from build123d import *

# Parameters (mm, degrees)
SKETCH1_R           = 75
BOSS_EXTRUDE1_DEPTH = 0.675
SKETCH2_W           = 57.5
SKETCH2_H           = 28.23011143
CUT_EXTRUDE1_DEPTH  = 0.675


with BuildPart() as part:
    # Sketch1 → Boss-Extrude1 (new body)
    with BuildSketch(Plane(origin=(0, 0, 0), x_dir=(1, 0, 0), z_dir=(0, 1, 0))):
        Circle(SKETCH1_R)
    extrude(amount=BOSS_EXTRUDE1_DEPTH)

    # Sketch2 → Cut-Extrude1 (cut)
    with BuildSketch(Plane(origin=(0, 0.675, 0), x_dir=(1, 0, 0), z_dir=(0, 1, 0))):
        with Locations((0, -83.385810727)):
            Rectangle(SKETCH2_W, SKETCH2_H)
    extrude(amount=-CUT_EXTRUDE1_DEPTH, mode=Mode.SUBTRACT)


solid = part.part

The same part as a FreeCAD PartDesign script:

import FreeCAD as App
import Part
import Sketcher
from FreeCAD import Vector


def add_polygon(sketch, points):
    """Adds a closed chain of lines whose ends are joined by coincident constraints."""
    first, n = sketch.GeometryCount, len(points)
    for a, b in zip(points, points[1:] + points[:1]):
        sketch.addGeometry(Part.LineSegment(App.Vector(*a, 0), App.Vector(*b, 0)), False)
    for i in range(n):
        sketch.addConstraint(Sketcher.Constraint("Coincident", first + i, 2, first + (i + 1) % n, 1))

doc = App.newDocument("Part")
params = doc.addObject("Spreadsheet::Sheet", "Params")
for row, (alias, value) in enumerate([
    ("sketch1_diameter", "150 mm"),
    ("pad1_length", "0.675 mm"),
    ("sketch2_width", "57.5 mm"),
    ("pocket1_length", "0.675 mm"),
], start=1):
    params.set(f"A{row}", alias)
    params.set(f"B{row}", "=" + value)
    params.setAlias(f"B{row}", alias)

body = doc.addObject("PartDesign::Body", "Body")

# Sketch on XZ plane
sketch1 = body.newObject("Sketcher::SketchObject", "Sketch")
sketch1.AttachmentSupport = (doc.getObject("XZ_Plane"), [""])
sketch1.MapMode = "FlatFace"
sketch1.addGeometry(Part.Circle(Vector(0, 0, 0), Vector(0, 0, 1), 75), False)
sketch1.addConstraint(Sketcher.Constraint("Coincident", 0, 3, -1, 1))
sketch1.addConstraint(Sketcher.Constraint("Diameter", 0, 150.0))
sketch1.setExpression("Constraints[1]", "Params.sketch1_diameter")
pad1 = body.newObject("PartDesign::Pad", "Pad")
pad1.Profile = sketch1
pad1.setExpression("Length", "Params.pad1_length")
pad1.Reversed = True

# Sketch on XZ plane
sketch2 = body.newObject("Sketcher::SketchObject", "Sketch001")
sketch2.AttachmentSupport = (doc.getObject("XZ_Plane"), [""])
sketch2.MapMode = "FlatFace"
sketch2.AttachmentOffset = App.Placement(Vector(0, 0, -0.675), App.Rotation())
add_polygon(sketch2, [(-29, 69), (-29, 98), (29, 98), (29, 69)])  # lines 0-3
sketch2.addConstraint(Sketcher.Constraint("Vertical", 0))
sketch2.addConstraint(Sketcher.Constraint("Horizontal", 1))
sketch2.addConstraint(Sketcher.Constraint("Vertical", 2))
sketch2.addConstraint(Sketcher.Constraint("Horizontal", 3))
sketch2.addConstraint(Sketcher.Constraint("DistanceX", 1, 1, 1, 2, 57.5))
sketch2.addConstraint(Sketcher.Constraint("DistanceX", 0, 2, -1, 1, 28.75))
sketch2.addConstraint(Sketcher.Constraint("DistanceY", 0, 1, 0, 2, 28.230111))
sketch2.addConstraint(Sketcher.Constraint("DistanceY", -1, 1, 0, 2, 97.500866))
sketch2.setExpression("Constraints[8]", "Params.sketch2_width")
pocket1 = body.newObject("PartDesign::Pocket", "Pocket")
pocket1.Profile = sketch2
pocket1.setExpression("Length", "Params.pocket1_length")
pocket1.Reversed = True

doc.recompute()
